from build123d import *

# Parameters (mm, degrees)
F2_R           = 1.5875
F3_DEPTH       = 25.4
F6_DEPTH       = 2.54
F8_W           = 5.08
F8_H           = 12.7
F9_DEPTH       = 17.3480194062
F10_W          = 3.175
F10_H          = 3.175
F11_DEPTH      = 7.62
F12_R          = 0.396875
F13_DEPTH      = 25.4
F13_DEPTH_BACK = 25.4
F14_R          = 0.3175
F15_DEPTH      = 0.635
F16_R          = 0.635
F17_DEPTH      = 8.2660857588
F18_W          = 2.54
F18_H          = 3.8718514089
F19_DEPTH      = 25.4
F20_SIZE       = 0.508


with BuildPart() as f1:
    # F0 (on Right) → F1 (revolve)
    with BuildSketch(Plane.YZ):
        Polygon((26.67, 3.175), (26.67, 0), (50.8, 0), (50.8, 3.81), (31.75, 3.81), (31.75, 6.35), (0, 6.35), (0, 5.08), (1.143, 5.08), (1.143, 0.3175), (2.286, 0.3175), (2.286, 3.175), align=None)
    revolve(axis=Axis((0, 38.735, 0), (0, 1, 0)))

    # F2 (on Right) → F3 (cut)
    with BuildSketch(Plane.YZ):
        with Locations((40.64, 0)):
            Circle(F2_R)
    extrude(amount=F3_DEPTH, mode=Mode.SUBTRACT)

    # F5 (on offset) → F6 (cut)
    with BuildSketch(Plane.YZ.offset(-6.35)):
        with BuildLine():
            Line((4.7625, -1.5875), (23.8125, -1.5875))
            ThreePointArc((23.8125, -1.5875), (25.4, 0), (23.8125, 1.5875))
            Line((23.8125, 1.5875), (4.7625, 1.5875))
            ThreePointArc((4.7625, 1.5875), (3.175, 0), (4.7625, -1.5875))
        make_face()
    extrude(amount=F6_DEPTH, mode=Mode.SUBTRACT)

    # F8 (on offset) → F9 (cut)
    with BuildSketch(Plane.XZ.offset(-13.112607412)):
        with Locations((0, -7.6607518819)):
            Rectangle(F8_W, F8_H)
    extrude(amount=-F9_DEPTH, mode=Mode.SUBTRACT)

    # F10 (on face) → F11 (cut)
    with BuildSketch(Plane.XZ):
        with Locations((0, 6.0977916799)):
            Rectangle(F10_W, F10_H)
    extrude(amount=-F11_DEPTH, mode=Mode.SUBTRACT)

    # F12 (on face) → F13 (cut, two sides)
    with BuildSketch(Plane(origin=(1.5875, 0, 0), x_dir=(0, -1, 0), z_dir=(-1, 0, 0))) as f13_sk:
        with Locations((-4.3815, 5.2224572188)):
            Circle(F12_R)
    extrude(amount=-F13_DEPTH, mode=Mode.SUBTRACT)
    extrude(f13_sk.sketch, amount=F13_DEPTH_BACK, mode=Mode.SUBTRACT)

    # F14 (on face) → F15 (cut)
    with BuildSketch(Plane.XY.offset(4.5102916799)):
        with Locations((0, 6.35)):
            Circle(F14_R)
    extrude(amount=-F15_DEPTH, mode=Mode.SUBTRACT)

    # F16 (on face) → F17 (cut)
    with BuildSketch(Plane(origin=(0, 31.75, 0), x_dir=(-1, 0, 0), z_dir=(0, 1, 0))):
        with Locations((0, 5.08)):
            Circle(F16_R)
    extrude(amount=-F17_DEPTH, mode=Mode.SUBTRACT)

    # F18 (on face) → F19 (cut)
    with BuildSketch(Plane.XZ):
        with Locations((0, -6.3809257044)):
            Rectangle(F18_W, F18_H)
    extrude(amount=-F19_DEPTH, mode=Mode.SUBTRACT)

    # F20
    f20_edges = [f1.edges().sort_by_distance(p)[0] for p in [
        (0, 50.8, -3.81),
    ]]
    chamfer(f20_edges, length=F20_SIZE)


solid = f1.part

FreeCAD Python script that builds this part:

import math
import FreeCAD as App
import Part
import Sketcher
Q = App.Units.Quantity


def edges_at(feature, points):
    """Names of the edges that pass closest to the given points."""
    edges = feature.Shape.Edges
    near = lambda p: min(range(len(edges)), key=lambda i: edges[i].distToShape(Part.Vertex(*p))[0])
    return sorted({f"Edge{near(p) + 1}" for p in points})

doc = App.newDocument("Part")
body = doc.addObject("PartDesign::Body", "Body")

sketch1 = doc.addObject("Sketcher::SketchObject", "Sketch")
body.addObject(sketch1)
sketch1.AttachmentSupport = (doc.YZ_Plane, [""])
sketch1.MapMode = "FlatFace"
sketch1.addGeometry([
    Part.LineSegment(App.Vector(26.7, 3.2, 0), App.Vector(26.7, 0, 0)),
    Part.LineSegment(App.Vector(26.7, 0, 0), App.Vector(50.8, 0, 0)),
    Part.LineSegment(App.Vector(50.8, 0, 0), App.Vector(50.8, 3.8, 0)),
    Part.LineSegment(App.Vector(50.8, 3.8, 0), App.Vector(31.8, 3.8, 0)),
    Part.LineSegment(App.Vector(31.8, 3.8, 0), App.Vector(31.8, 6.3, 0)),
    Part.LineSegment(App.Vector(31.8, 6.3, 0), App.Vector(0, 6.3, 0)),
    Part.LineSegment(App.Vector(0, 6.3, 0), App.Vector(0, 5.1, 0)),
    Part.LineSegment(App.Vector(0, 5.1, 0), App.Vector(1.1, 5.1, 0)),
    Part.LineSegment(App.Vector(1.1, 5.1, 0), App.Vector(1.1, 0.3, 0)),
    Part.LineSegment(App.Vector(1.1, 0.3, 0), App.Vector(2.3, 0.3, 0)),
    Part.LineSegment(App.Vector(2.3, 0.3, 0), App.Vector(2.3, 3.2, 0)),
    Part.LineSegment(App.Vector(2.3, 3.2, 0), App.Vector(26.7, 3.2, 0)),
], False)
sketch1.addConstraint([
    Sketcher.Constraint("Coincident", 0, 2, 1, 1),
    Sketcher.Constraint("Coincident", 1, 2, 2, 1),
    Sketcher.Constraint("Coincident", 2, 2, 3, 1),
    Sketcher.Constraint("Coincident", 3, 2, 4, 1),
    Sketcher.Constraint("Coincident", 4, 2, 5, 1),
    Sketcher.Constraint("Coincident", 5, 2, 6, 1),
    Sketcher.Constraint("Coincident", 6, 2, 7, 1),
    Sketcher.Constraint("Coincident", 7, 2, 8, 1),
    Sketcher.Constraint("Coincident", 8, 2, 9, 1),
    Sketcher.Constraint("Coincident", 9, 2, 10, 1),
    Sketcher.Constraint("Coincident", 10, 2, 11, 1),
    Sketcher.Constraint("Coincident", 11, 2, 0, 1),
    Sketcher.Constraint("Vertical", 0),
    Sketcher.Constraint("Horizontal", 1),
    Sketcher.Constraint("Vertical", 2),
    Sketcher.Constraint("Horizontal", 3),
    Sketcher.Constraint("Vertical", 4),
    Sketcher.Constraint("Horizontal", 5),
    Sketcher.Constraint("Vertical", 6),
    Sketcher.Constraint("Horizontal", 7),
    Sketcher.Constraint("Vertical", 8),
    Sketcher.Constraint("Horizontal", 9),
    Sketcher.Constraint("Vertical", 10),
    Sketcher.Constraint("Horizontal", 11),
    Sketcher.Constraint("PointOnObject", 0, 2, -1),
    Sketcher.Constraint("PointOnObject", 5, 2, -2),
    Sketcher.Constraint("Equal", 7, 9),
    Sketcher.Constraint("DistanceY", 4, 1, 4, 2, Q("0.1 in")),
    Sketcher.Constraint("DistanceX", -1, 1, 1, 2, Q("2 in")),
    Sketcher.Constraint("DistanceX", 1, 1, 1, 2, Q("0.95 in")),
    Sketcher.Constraint("DistanceX", 3, 2, 3, 1, Q("0.75 in")),
    Sketcher.Constraint("DistanceX", 11, 1, 11, 2, Q("0.96 in")),
    Sketcher.Constraint("DistanceY", 2, 1, 2, 2, Q("0.15 in")),
    Sketcher.Constraint("DistanceY", 6, 2, 6, 1, Q("0.05 in")),
    Sketcher.Constraint("DistanceY", 0, 2, 0, 1, Q("0.125 in")),
    Sketcher.Constraint("DistanceY", 8, 2, 8, 1, Q("0.1875 in")),
])
revolution = doc.addObject("PartDesign::Revolution", "Revolution")
body.addObject(revolution)
revolution.Profile = sketch1
revolution.ReferenceAxis = (sketch1, ["H_Axis"])
revolution.Angle = 360

sketch2 = doc.addObject("Sketcher::SketchObject", "Sketch001")
body.addObject(sketch2)
sketch2.AttachmentSupport = (doc.YZ_Plane, [""])
sketch2.MapMode = "FlatFace"
sketch2.addGeometry(Part.Circle(App.Vector(40.6, 0, 0), App.Vector(0, 0, 1), 1.6), False)
sketch2.addConstraint([
    Sketcher.Constraint("PointOnObject", 0, 3, -1),
    Sketcher.Constraint("Diameter", 0, Q("0.125 in")),
    Sketcher.Constraint("DistanceX", -1, 1, 0, 3, Q("1.6 in")),
])
pocket1 = doc.addObject("PartDesign::Pocket", "Pocket")
body.addObject(pocket1)
pocket1.Profile = sketch2
pocket1.Length = Q("1 in")
pocket1.Reversed = True

sketch3 = doc.addObject("Sketcher::SketchObject", "Sketch002")
body.addObject(sketch3)
sketch3.AttachmentSupport = (doc.YZ_Plane, [""])
sketch3.MapMode = "FlatFace"
sketch3.AttachmentOffset = App.Placement(App.Vector(0, 0, -0.25 * 25.4), App.Rotation())
sketch3.addGeometry([
    Part.LineSegment(App.Vector(4.8, -1.6, 0), App.Vector(23.8, -1.6, 0)),
    Part.ArcOfCircle(Part.Circle(App.Vector(23.8, 0, 0), App.Vector(0, 0, 1), 1.6), math.radians(-90), math.radians(90)),
    Part.LineSegment(App.Vector(23.8, 1.6, 0), App.Vector(4.8, 1.6, 0)),
    Part.ArcOfCircle(Part.Circle(App.Vector(4.8, 0, 0), App.Vector(0, 0, 1), 1.6), math.radians(90), math.radians(270)),
], False)
sketch3.addConstraint([
    Sketcher.Constraint("Tangent", 0, 2, 1, 1),
    Sketcher.Constraint("Tangent", 1, 2, 2, 1),
    Sketcher.Constraint("Tangent", 2, 2, 3, 1),
    Sketcher.Constraint("Tangent", 3, 2, 0, 1),
    Sketcher.Constraint("Horizontal", 0),
    Sketcher.Constraint("Horizontal", 2),
    Sketcher.Constraint("PointOnObject", 1, 3, -1),
    Sketcher.Constraint("Radius", 1, Q("0.0625 in")),
    Sketcher.Constraint("DistanceX", 0, 1, 0, 2, Q("0.75 in")),
    Sketcher.Constraint("DistanceX", -1, 1, 1, 3, Q("0.9375 in")),
])
pocket2 = doc.addObject("PartDesign::Pocket", "Pocket001")
body.addObject(pocket2)
pocket2.Profile = sketch3
pocket2.Length = Q("0.1 in")
pocket2.Reversed = True

sketch4 = doc.addObject("Sketcher::SketchObject", "Sketch003")
body.addObject(sketch4)
sketch4.AttachmentSupport = (doc.XZ_Plane, [""])
sketch4.MapMode = "FlatFace"
sketch4.AttachmentOffset = App.Placement(App.Vector(0, 0, -13.112607), App.Rotation())
sketch4.addGeometry([
    Part.LineSegment(App.Vector(-3, -1, 0), App.Vector(-3, -14, 0)),
    Part.LineSegment(App.Vector(-3, -14, 0), App.Vector(3, -14, 0)),
    Part.LineSegment(App.Vector(3, -14, 0), App.Vector(3, -1, 0)),
    Part.LineSegment(App.Vector(3, -1, 0), App.Vector(-3, -1, 0)),
], False)
sketch4.addConstraint([
    Sketcher.Constraint("Coincident", 0, 2, 1, 1),
    Sketcher.Constraint("Coincident", 1, 2, 2, 1),
    Sketcher.Constraint("Coincident", 2, 2, 3, 1),
    Sketcher.Constraint("Coincident", 3, 2, 0, 1),
    Sketcher.Constraint("Vertical", 0),
    Sketcher.Constraint("Horizontal", 1),
    Sketcher.Constraint("Vertical", 2),
    Sketcher.Constraint("Horizontal", 3),
    Sketcher.Constraint("DistanceX", 1, 1, 1, 2, Q("0.2 in")),
    Sketcher.Constraint("DistanceY", 0, 2, 0, 1, Q("0.5 in")),
    Sketcher.Constraint("DistanceX", 0, 2, -1, 1, Q("0.1 in")),
    Sketcher.Constraint("DistanceY", 0, 2, -1, 1, Q("14.010752 mm")),
])
pocket3 = doc.addObject("PartDesign::Pocket", "Pocket002")
body.addObject(pocket3)
pocket3.Profile = sketch4
pocket3.Length = 17.348019

sketch5 = doc.addObject("Sketcher::SketchObject", "Sketch004")
body.addObject(sketch5)
sketch5.AttachmentSupport = (doc.XZ_Plane, [""])
sketch5.MapMode = "FlatFace"
sketch5.addGeometry([
    Part.LineSegment(App.Vector(-1.6, 7.7, 0), App.Vector(-1.6, 4.5, 0)),
    Part.LineSegment(App.Vector(-1.6, 4.5, 0), App.Vector(1.6, 4.5, 0)),
    Part.LineSegment(App.Vector(1.6, 4.5, 0), App.Vector(1.6, 7.7, 0)),
    Part.LineSegment(App.Vector(1.6, 7.7, 0), App.Vector(-1.6, 7.7, 0)),
], False)
sketch5.addConstraint([
    Sketcher.Constraint("Coincident", 0, 2, 1, 1),
    Sketcher.Constraint("Coincident", 1, 2, 2, 1),
    Sketcher.Constraint("Coincident", 2, 2, 3, 1),
    Sketcher.Constraint("Coincident", 3, 2, 0, 1),
    Sketcher.Constraint("Vertical", 0),
    Sketcher.Constraint("Horizontal", 1),
    Sketcher.Constraint("Vertical", 2),
    Sketcher.Constraint("Horizontal", 3),
    Sketcher.Constraint("Equal", 3, 0),
    Sketcher.Constraint("DistanceX", 1, 1, 1, 2, Q("0.125 in")),
    Sketcher.Constraint("DistanceX", 0, 2, -1, 1, Q("0.0625 in")),
    Sketcher.Constraint("DistanceY", -1, 1, 0, 2, Q("4.510292 mm")),
])
pocket4 = doc.addObject("PartDesign::Pocket", "Pocket003")
body.addObject(pocket4)
pocket4.Profile = sketch5
pocket4.Length = Q("0.3 in")

sketch6 = doc.addObject("Sketcher::SketchObject", "Sketch005")
body.addObject(sketch6)
sketch6.AttachmentSupport = (doc.YZ_Plane, [""])
sketch6.MapMode = "FlatFace"
sketch6.AttachmentOffset = App.Placement(App.Vector(0, 0, 0.0625 * 25.4), App.Rotation())
sketch6.addGeometry(Part.Circle(App.Vector(4.38, 5.22, 0), App.Vector(0, 0, 1), 0.4), False)
sketch6.addConstraint([
    Sketcher.Constraint("Diameter", 0, Q("0.03125 in")),
    Sketcher.Constraint("DistanceX", -1, 1, 0, 3, Q("0.1725 in")),
    Sketcher.Constraint("DistanceY", -1, 1, 0, 3, Q("5.222457 mm")),
])
pocket5 = doc.addObject("PartDesign::Pocket", "Pocket004")
body.addObject(pocket5)
pocket5.Profile = sketch6
pocket5.Type = "ThroughAll"
pocket5.Midplane = True

sketch7 = doc.addObject("Sketcher::SketchObject", "Sketch006")
body.addObject(sketch7)
sketch7.AttachmentSupport = (doc.XY_Plane, [""])
sketch7.MapMode = "FlatFace"
sketch7.AttachmentOffset = App.Placement(App.Vector(0, 0, 4.510292), App.Rotation())
sketch7.addGeometry(Part.Circle(App.Vector(0, 6.35, 0), App.Vector(0, 0, 1), 0.32), False)
sketch7.addConstraint([
    Sketcher.Constraint("PointOnObject", 0, 3, -2),
    Sketcher.Constraint("Diameter", 0, Q("0.025 in")),
    Sketcher.Constraint("DistanceY", -1, 1, 0, 3, Q("0.25 in")),
])
pocket6 = doc.addObject("PartDesign::Pocket", "Pocket005")
body.addObject(pocket6)
pocket6.Profile = sketch7
pocket6.Length = Q("0.025 in")

sketch8 = doc.addObject("Sketcher::SketchObject", "Sketch007")
body.addObject(sketch8)
sketch8.AttachmentSupport = (doc.XZ_Plane, [""])
sketch8.MapMode = "FlatFace"
sketch8.AttachmentOffset = App.Placement(App.Vector(0, 0, -1.25 * 25.4), App.Rotation())
sketch8.addGeometry(Part.Circle(App.Vector(0, 5.1, 0), App.Vector(0, 0, 1), 0.6), False)
sketch8.addConstraint([
    Sketcher.Constraint("PointOnObject", 0, 3, -2),
    Sketcher.Constraint("Diameter", 0, Q("0.05 in")),
    Sketcher.Constraint("DistanceY", -1, 1, 0, 3, Q("0.2 in")),
])
pocket7 = doc.addObject("PartDesign::Pocket", "Pocket006")
body.addObject(pocket7)
pocket7.Profile = sketch8
pocket7.Length = 8.266086
pocket7.Reversed = True

sketch9 = doc.addObject("Sketcher::SketchObject", "Sketch008")
body.addObject(sketch9)
sketch9.AttachmentSupport = (doc.XZ_Plane, [""])
sketch9.MapMode = "FlatFace"
sketch9.addGeometry([
    Part.LineSegment(App.Vector(-1.3, -4.4, 0), App.Vector(-1.3, -8.3, 0)),
    Part.LineSegment(App.Vector(-1.3, -8.3, 0), App.Vector(1.3, -8.3, 0)),
    Part.LineSegment(App.Vector(1.3, -8.3, 0), App.Vector(1.3, -4.4, 0)),
    Part.LineSegment(App.Vector(1.3, -4.4, 0), App.Vector(-1.3, -4.4, 0)),
], False)
sketch9.addConstraint([
    Sketcher.Constraint("Coincident", 0, 2, 1, 1),
    Sketcher.Constraint("Coincident", 1, 2, 2, 1),
    Sketcher.Constraint("Coincident", 2, 2, 3, 1),
    Sketcher.Constraint("Coincident", 3, 2, 0, 1),
    Sketcher.Constraint("Vertical", 0),
    Sketcher.Constraint("Horizontal", 1),
    Sketcher.Constraint("Vertical", 2),
    Sketcher.Constraint("Horizontal", 3),
    Sketcher.Constraint("DistanceX", 1, 1, 1, 2, Q("0.1 in")),
    Sketcher.Constraint("DistanceX", 0, 2, -1, 1, Q("0.05 in")),
    Sketcher.Constraint("DistanceY", 2, 2, -1, 1, Q("0.175 in")),
    Sketcher.Constraint("DistanceY", 0, 2, 0, 1, Q("3.871851 mm")),
])
pocket8 = doc.addObject("PartDesign::Pocket", "Pocket007")
body.addObject(pocket8)
pocket8.Profile = sketch9
pocket8.Length = Q("1 in")
doc.recompute()

chamfer = doc.addObject("PartDesign::Chamfer", "Chamfer")
body.addObject(chamfer)
chamfer.Base = (pocket8, edges_at(pocket8, [(0, 50.8, -3.81)]))
chamfer.Size = Q("0.02 in")

doc.recompute()
